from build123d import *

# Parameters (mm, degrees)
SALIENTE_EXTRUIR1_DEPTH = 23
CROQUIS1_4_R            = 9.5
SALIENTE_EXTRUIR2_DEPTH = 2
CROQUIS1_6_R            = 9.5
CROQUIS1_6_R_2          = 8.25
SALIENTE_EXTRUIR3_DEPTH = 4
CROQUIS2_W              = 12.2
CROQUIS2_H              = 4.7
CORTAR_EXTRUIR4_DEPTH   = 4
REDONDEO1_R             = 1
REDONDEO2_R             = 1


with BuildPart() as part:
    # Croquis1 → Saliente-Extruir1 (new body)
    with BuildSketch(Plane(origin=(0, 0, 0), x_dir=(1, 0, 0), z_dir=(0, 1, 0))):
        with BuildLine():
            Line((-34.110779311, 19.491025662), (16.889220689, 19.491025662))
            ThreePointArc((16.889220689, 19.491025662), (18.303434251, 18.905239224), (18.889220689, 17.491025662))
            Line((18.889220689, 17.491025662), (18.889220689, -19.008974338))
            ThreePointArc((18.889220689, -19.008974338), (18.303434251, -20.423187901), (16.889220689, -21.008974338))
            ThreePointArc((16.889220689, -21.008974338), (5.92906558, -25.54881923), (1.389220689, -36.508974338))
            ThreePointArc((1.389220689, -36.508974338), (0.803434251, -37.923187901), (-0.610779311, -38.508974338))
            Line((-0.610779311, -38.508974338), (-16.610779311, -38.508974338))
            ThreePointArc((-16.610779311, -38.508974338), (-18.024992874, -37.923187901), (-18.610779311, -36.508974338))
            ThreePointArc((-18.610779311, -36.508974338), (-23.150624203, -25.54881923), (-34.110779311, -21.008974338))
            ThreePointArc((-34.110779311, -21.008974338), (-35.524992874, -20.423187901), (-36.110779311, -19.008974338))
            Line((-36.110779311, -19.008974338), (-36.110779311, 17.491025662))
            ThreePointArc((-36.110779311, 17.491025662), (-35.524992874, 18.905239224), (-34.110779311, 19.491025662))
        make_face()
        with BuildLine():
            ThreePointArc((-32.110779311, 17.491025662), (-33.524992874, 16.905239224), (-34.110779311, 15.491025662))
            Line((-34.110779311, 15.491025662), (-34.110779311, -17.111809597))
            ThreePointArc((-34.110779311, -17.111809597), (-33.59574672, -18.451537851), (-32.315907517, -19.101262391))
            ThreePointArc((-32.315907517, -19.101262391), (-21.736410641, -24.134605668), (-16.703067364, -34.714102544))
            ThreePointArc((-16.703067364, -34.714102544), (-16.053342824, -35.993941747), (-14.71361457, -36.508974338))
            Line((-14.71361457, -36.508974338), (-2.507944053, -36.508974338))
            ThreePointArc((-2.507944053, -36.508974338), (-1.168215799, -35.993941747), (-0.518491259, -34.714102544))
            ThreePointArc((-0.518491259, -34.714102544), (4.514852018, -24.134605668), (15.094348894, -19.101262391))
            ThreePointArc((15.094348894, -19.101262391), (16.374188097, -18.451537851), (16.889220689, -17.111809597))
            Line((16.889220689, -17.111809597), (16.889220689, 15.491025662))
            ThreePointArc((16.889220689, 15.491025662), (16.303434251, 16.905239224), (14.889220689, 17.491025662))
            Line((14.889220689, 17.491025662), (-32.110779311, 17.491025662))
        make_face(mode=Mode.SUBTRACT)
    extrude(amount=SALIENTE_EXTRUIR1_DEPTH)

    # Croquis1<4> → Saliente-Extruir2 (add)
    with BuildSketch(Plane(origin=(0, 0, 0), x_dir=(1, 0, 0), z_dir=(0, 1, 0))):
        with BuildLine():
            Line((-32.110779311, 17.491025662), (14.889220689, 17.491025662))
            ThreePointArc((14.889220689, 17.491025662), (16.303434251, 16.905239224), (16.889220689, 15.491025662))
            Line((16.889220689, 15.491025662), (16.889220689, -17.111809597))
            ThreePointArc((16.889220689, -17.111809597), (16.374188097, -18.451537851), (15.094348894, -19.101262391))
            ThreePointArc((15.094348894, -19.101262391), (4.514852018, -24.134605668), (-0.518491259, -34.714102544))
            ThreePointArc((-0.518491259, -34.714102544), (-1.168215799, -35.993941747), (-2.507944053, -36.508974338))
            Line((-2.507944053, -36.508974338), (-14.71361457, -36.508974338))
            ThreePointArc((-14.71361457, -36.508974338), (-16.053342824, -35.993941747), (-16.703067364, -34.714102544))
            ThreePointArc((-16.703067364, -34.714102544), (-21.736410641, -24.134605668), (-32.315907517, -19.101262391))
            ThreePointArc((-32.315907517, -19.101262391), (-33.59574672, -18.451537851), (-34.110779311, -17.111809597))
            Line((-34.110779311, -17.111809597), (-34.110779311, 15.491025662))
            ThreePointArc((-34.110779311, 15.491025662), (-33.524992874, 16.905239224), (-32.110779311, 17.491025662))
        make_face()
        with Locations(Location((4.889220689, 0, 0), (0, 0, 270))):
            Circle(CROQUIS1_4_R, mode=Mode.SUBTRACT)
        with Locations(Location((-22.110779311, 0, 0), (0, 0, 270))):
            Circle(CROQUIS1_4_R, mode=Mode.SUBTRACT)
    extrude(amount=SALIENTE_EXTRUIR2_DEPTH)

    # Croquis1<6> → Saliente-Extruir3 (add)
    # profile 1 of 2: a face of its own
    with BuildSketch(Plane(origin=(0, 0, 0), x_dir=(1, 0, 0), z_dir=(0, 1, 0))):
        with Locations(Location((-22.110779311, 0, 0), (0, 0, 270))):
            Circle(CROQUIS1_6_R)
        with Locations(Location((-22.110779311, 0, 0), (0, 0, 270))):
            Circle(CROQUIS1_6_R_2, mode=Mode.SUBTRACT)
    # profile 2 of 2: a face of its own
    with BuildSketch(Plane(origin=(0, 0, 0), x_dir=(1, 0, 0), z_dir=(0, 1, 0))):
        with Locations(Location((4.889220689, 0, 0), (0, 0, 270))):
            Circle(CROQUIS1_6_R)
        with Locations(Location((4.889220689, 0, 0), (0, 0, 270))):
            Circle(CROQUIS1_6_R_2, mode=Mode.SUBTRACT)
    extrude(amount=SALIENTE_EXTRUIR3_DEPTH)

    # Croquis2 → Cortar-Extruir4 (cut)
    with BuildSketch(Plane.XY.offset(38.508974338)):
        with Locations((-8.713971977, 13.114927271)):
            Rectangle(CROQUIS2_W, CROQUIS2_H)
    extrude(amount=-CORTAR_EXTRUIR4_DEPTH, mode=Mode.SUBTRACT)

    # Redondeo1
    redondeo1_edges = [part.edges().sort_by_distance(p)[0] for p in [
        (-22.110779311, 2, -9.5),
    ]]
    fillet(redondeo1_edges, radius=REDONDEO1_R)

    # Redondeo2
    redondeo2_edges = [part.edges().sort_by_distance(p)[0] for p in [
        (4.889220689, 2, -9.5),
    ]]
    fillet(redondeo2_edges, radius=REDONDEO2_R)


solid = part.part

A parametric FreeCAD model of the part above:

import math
import FreeCAD as App
import Part
import Sketcher

V = App.Vector


def edges_at(feature, points):
    """Names of the edges that pass closest to the given points."""
    edges = feature.Shape.Edges
    near = lambda p: min(range(len(edges)), key=lambda i: edges[i].distToShape(Part.Vertex(*p))[0])
    return sorted({f"Edge{near(p) + 1}" for p in points})

doc = App.newDocument("Part")
body = doc.addObject("PartDesign::Body", "Body")

sketch1 = doc.addObject("Sketcher::SketchObject", "Sketch")
body.addObject(sketch1)
sketch1.AttachmentSupport = (doc.XZ_Plane, [""])
sketch1.MapMode = "FlatFace"
sketch1.addGeometry(Part.LineSegment(V(16.9, -19.5, 0), V(-34.1, -19.5, 0)), False)
sketch1.addGeometry(Part.ArcOfCircle(Part.Circle(V(-34.1, -17.5, 0), V(0, 0, 1), 2), math.radians(180), math.radians(270)), False)
sketch1.addGeometry(Part.LineSegment(V(-36.1, -17.5, 0), V(-36.1, 19, 0)), False)
sketch1.addGeometry(Part.ArcOfCircle(Part.Circle(V(-34.1, 19, 0), V(0, 0, 1), 2), math.radians(90), math.radians(180)), False)
sketch1.addGeometry(Part.ArcOfCircle(Part.Circle(V(-34.1, 36.5, 0), V(0, 0, 1), 15.5), math.radians(-90), math.radians(0)), False)
sketch1.addGeometry(Part.ArcOfCircle(Part.Circle(V(-16.6, 36.5, 0), V(0, 0, 1), 2), math.radians(90), math.radians(180)), False)
sketch1.addGeometry(Part.LineSegment(V(-16.6, 38.5, 0), V(-0.6, 38.5, 0)), False)
sketch1.addGeometry(Part.ArcOfCircle(Part.Circle(V(-0.6, 36.5, 0), V(0, 0, 1), 2), math.radians(0), math.radians(90)), False)
sketch1.addGeometry(Part.ArcOfCircle(Part.Circle(V(16.9, 36.5, 0), V(0, 0, 1), 15.5), math.radians(180), math.radians(270)), False)
sketch1.addGeometry(Part.ArcOfCircle(Part.Circle(V(16.9, 19, 0), V(0, 0, 1), 2), math.radians(0), math.radians(90)), False)
sketch1.addGeometry(Part.LineSegment(V(18.9, 19, 0), V(18.9, -17.5, 0)), False)
sketch1.addGeometry(Part.ArcOfCircle(Part.Circle(V(16.9, -17.5, 0), V(0, 0, 1), 2), math.radians(-90), math.radians(0)), False)
sketch1.addGeometry(Part.LineSegment(V(-32.1, -17.5, 0), V(14.9, -17.5, 0)), False)
sketch1.addGeometry(Part.ArcOfCircle(Part.Circle(V(14.9, -15.5, 0), V(0, 0, 1), 2), math.radians(-90), math.radians(0)), False)
sketch1.addGeometry(Part.LineSegment(V(16.9, -15.5, 0), V(16.9, 17.1, 0)), False)
sketch1.addGeometry(Part.ArcOfCircle(Part.Circle(V(14.9, 17.1, 0), V(0, 0, 1), 2), math.radians(0), math.radians(84)), False)
sketch1.addGeometry(Part.ArcOfCircle(Part.Circle(V(16.9, 36.5, 0), V(0, 0, 1), 17.5), math.radians(-174), math.radians(-96)), False)
sketch1.addGeometry(Part.ArcOfCircle(Part.Circle(V(-2.5, 34.5, 0), V(0, 0, 1), 2), math.radians(6), math.radians(90)), False)
sketch1.addGeometry(Part.LineSegment(V(-2.5, 36.5, 0), V(-14.7, 36.5, 0)), False)
sketch1.addGeometry(Part.ArcOfCircle(Part.Circle(V(-14.7, 34.5, 0), V(0, 0, 1), 2), math.radians(90), math.radians(174)), False)
sketch1.addGeometry(Part.ArcOfCircle(Part.Circle(V(-34.1, 36.5, 0), V(0, 0, 1), 17.5), math.radians(-84), math.radians(-6)), False)
sketch1.addGeometry(Part.ArcOfCircle(Part.Circle(V(-32.1, 17.1, 0), V(0, 0, 1), 2), math.radians(96), math.radians(180)), False)
sketch1.addGeometry(Part.LineSegment(V(-34.1, 17.1, 0), V(-34.1, -15.5, 0)), False)
sketch1.addGeometry(Part.ArcOfCircle(Part.Circle(V(-32.1, -15.5, 0), V(0, 0, 1), 2), math.radians(180), math.radians(270)), False)
sketch1.addConstraint(Sketcher.Constraint("Tangent", 0, 2, 1, 2))
sketch1.addConstraint(Sketcher.Constraint("Tangent", 1, 1, 2, 1))
sketch1.addConstraint(Sketcher.Constraint("Tangent", 2, 2, 3, 2))
sketch1.addConstraint(Sketcher.Constraint("Tangent", 3, 1, 4, 1))
sketch1.addConstraint(Sketcher.Constraint("Tangent", 4, 2, 5, 2))
sketch1.addConstraint(Sketcher.Constraint("Tangent", 5, 1, 6, 1))
sketch1.addConstraint(Sketcher.Constraint("Tangent", 6, 2, 7, 2))
sketch1.addConstraint(Sketcher.Constraint("Tangent", 7, 1, 8, 1))
sketch1.addConstraint(Sketcher.Constraint("Tangent", 8, 2, 9, 2))
sketch1.addConstraint(Sketcher.Constraint("Tangent", 9, 1, 10, 1))
sketch1.addConstraint(Sketcher.Constraint("Tangent", 10, 2, 11, 2))
sketch1.addConstraint(Sketcher.Constraint("Tangent", 11, 1, 0, 1))
sketch1.addConstraint(Sketcher.Constraint("Tangent", 12, 2, 13, 1))
sketch1.addConstraint(Sketcher.Constraint("Tangent", 13, 2, 14, 1))
sketch1.addConstraint(Sketcher.Constraint("Tangent", 14, 2, 15, 1))
sketch1.addConstraint(Sketcher.Constraint("Tangent", 15, 2, 16, 2))
sketch1.addConstraint(Sketcher.Constraint("Tangent", 16, 1, 17, 1))
sketch1.addConstraint(Sketcher.Constraint("Tangent", 17, 2, 18, 1))
sketch1.addConstraint(Sketcher.Constraint("Tangent", 18, 2, 19, 1))
sketch1.addConstraint(Sketcher.Constraint("Tangent", 19, 2, 20, 2))
sketch1.addConstraint(Sketcher.Constraint("Tangent", 20, 1, 21, 1))
sketch1.addConstraint(Sketcher.Constraint("Tangent", 21, 2, 22, 1))
sketch1.addConstraint(Sketcher.Constraint("Tangent", 22, 2, 23, 1))
sketch1.addConstraint(Sketcher.Constraint("Tangent", 23, 2, 12, 1))
sketch1.addConstraint(Sketcher.Constraint("Horizontal", 0))
sketch1.addConstraint(Sketcher.Constraint("Vertical", 2))
sketch1.addConstraint(Sketcher.Constraint("Horizontal", 6))
sketch1.addConstraint(Sketcher.Constraint("Vertical", 10))
sketch1.addConstraint(Sketcher.Constraint("Horizontal", 12))
sketch1.addConstraint(Sketcher.Constraint("Vertical", 14))
sketch1.addConstraint(Sketcher.Constraint("Horizontal", 18))
sketch1.addConstraint(Sketcher.Constraint("Vertical", 22))
sketch1.addConstraint(Sketcher.Constraint("Coincident", 16, 3, 8, 3))
sketch1.addConstraint(Sketcher.Constraint("Coincident", 20, 3, 4, 3))
sketch1.addConstraint(Sketcher.Constraint("Equal", 1, 3))
sketch1.addConstraint(Sketcher.Constraint("Equal", 3, 5))
sketch1.addConstraint(Sketcher.Constraint("Equal", 5, 7))
sketch1.addConstraint(Sketcher.Constraint("Equal", 4, 8))
sketch1.addConstraint(Sketcher.Constraint("Equal", 7, 9))
sketch1.addConstraint(Sketcher.Constraint("Equal", 9, 11))
sketch1.addConstraint(Sketcher.Constraint("Equal", 11, 13))
sketch1.addConstraint(Sketcher.Constraint("Equal", 13, 15))
sketch1.addConstraint(Sketcher.Constraint("Equal", 15, 17))
sketch1.addConstraint(Sketcher.Constraint("Equal", 17, 19))
sketch1.addConstraint(Sketcher.Constraint("Equal", 16, 20))
sketch1.addConstraint(Sketcher.Constraint("Equal", 19, 21))
sketch1.addConstraint(Sketcher.Constraint("Equal", 21, 23))
sketch1.addConstraint(Sketcher.Constraint("Horizontal", 4, 3, 5, 3))
sketch1.addConstraint(Sketcher.Constraint("Horizontal", 7, 3, 8, 3))
sketch1.addConstraint(Sketcher.Constraint("Horizontal", 15, 3, 21, 3))
sketch1.addConstraint(Sketcher.Constraint("Horizontal", 10, 2, 12, 2))
sketch1.addConstraint(Sketcher.Constraint("Horizontal", 7, 1, 17, 2))
sketch1.addConstraint(Sketcher.Constraint("Vertical", 3, 3, 4, 3))
sketch1.addConstraint(Sketcher.Constraint("Vertical", 8, 3, 9, 3))
sketch1.addConstraint(Sketcher.Constraint("Vertical", 11, 1, 13, 2))
sketch1.addConstraint(Sketcher.Constraint("Radius", 1, 2.0))
sketch1.addConstraint(Sketcher.Constraint("Radius", 4, 15.5))
sketch1.addConstraint(Sketcher.Constraint("Radius", 16, 17.5))
sketch1.addConstraint(Sketcher.Constraint("DistanceX", 0, 2, 0, 1, 51.0))
sketch1.addConstraint(Sketcher.Constraint("DistanceY", 2, 1, 2, 2, 36.5))
sketch1.addConstraint(Sketcher.Constraint("DistanceX", 1, 3, -1, 1, 34.110779))
sketch1.addConstraint(Sketcher.Constraint("DistanceY", -1, 1, 15, 3, 17.11181))
pad1 = doc.addObject("PartDesign::Pad", "Pad")
body.addObject(pad1)
pad1.Profile = sketch1
pad1.Length = 23
pad1.Reversed = True

sketch2 = doc.addObject("Sketcher::SketchObject", "Sketch001")
body.addObject(sketch2)
sketch2.AttachmentSupport = (doc.XZ_Plane, [""])
sketch2.MapMode = "FlatFace"
sketch2.addGeometry(Part.LineSegment(V(14.9, -17.5, 0), V(-32.1, -17.5, 0)), False)
sketch2.addGeometry(Part.ArcOfCircle(Part.Circle(V(-32.1, -15.5, 0), V(0, 0, 1), 2), math.radians(180), math.radians(270)), False)
sketch2.addGeometry(Part.LineSegment(V(-34.1, -15.5, 0), V(-34.1, 17.1, 0)), False)
sketch2.addGeometry(Part.ArcOfCircle(Part.Circle(V(-32.1, 17.1, 0), V(0, 0, 1), 2), math.radians(96), math.radians(180)), False)
sketch2.addGeometry(Part.ArcOfCircle(Part.Circle(V(-34.1, 36.5, 0), V(0, 0, 1), 17.5), math.radians(-84), math.radians(-6)), False)
sketch2.addGeometry(Part.ArcOfCircle(Part.Circle(V(-14.7, 34.5, 0), V(0, 0, 1), 2), math.radians(90), math.radians(174)), False)
sketch2.addGeometry(Part.LineSegment(V(-14.7, 36.5, 0), V(-2.5, 36.5, 0)), False)
sketch2.addGeometry(Part.ArcOfCircle(Part.Circle(V(-2.5, 34.5, 0), V(0, 0, 1), 2), math.radians(6), math.radians(90)), False)
sketch2.addGeometry(Part.ArcOfCircle(Part.Circle(V(16.9, 36.5, 0), V(0, 0, 1), 17.5), math.radians(-174), math.radians(-96)), False)
sketch2.addGeometry(Part.ArcOfCircle(Part.Circle(V(14.9, 17.1, 0), V(0, 0, 1), 2), math.radians(0), math.radians(84)), False)
sketch2.addGeometry(Part.LineSegment(V(16.9, 17.1, 0), V(16.9, -15.5, 0)), False)
sketch2.addGeometry(Part.ArcOfCircle(Part.Circle(V(14.9, -15.5, 0), V(0, 0, 1), 2), math.radians(-90), math.radians(0)), False)
sketch2.addGeometry(Part.Circle(V(4.9, 0, 0), V(0, 0, 1), 9.5), False)
sketch2.addGeometry(Part.Circle(V(-22.1, 0, 0), V(0, 0, 1), 9.5), False)
sketch2.addConstraint(Sketcher.Constraint("Tangent", 0, 2, 1, 2))
sketch2.addConstraint(Sketcher.Constraint("Tangent", 1, 1, 2, 1))
sketch2.addConstraint(Sketcher.Constraint("Tangent", 2, 2, 3, 2))
sketch2.addConstraint(Sketcher.Constraint("Tangent", 3, 1, 4, 1))
sketch2.addConstraint(Sketcher.Constraint("Tangent", 4, 2, 5, 2))
sketch2.addConstraint(Sketcher.Constraint("Tangent", 5, 1, 6, 1))
sketch2.addConstraint(Sketcher.Constraint("Tangent", 6, 2, 7, 2))
sketch2.addConstraint(Sketcher.Constraint("Tangent", 7, 1, 8, 1))
sketch2.addConstraint(Sketcher.Constraint("Tangent", 8, 2, 9, 2))
sketch2.addConstraint(Sketcher.Constraint("Tangent", 9, 1, 10, 1))
sketch2.addConstraint(Sketcher.Constraint("Tangent", 10, 2, 11, 2))
sketch2.addConstraint(Sketcher.Constraint("Tangent", 11, 1, 0, 1))
sketch2.addConstraint(Sketcher.Constraint("Horizontal", 0))
sketch2.addConstraint(Sketcher.Constraint("Vertical", 2))
sketch2.addConstraint(Sketcher.Constraint("Horizontal", 6))
sketch2.addConstraint(Sketcher.Constraint("Vertical", 10))
sketch2.addConstraint(Sketcher.Constraint("Equal", 1, 3))
sketch2.addConstraint(Sketcher.Constraint("Equal", 3, 5))
sketch2.addConstraint(Sketcher.Constraint("Equal", 5, 7))
sketch2.addConstraint(Sketcher.Constraint("Equal", 4, 8))
sketch2.addConstraint(Sketcher.Constraint("Equal", 7, 9))
sketch2.addConstraint(Sketcher.Constraint("Equal", 9, 11))
sketch2.addConstraint(Sketcher.Constraint("Equal", 12, 13))
sketch2.addConstraint(Sketcher.Constraint("PointOnObject", 12, 3, -1))
sketch2.addConstraint(Sketcher.Constraint("PointOnObject", 13, 3, -1))
sketch2.addConstraint(Sketcher.Constraint("Horizontal", 4, 3, 8, 3))
sketch2.addConstraint(Sketcher.Constraint("Horizontal", 3, 3, 9, 3))
sketch2.addConstraint(Sketcher.Constraint("Horizontal", 8, 3, 5, 1))
sketch2.addConstraint(Sketcher.Constraint("Vertical", 4, 3, 1, 1))
sketch2.addConstraint(Sketcher.Constraint("Diameter", 12, 19.0))
sketch2.addConstraint(Sketcher.Constraint("Radius", 1, 2.0))
sketch2.addConstraint(Sketcher.Constraint("Radius", 4, 17.5))
sketch2.addConstraint(Sketcher.Constraint("DistanceX", 0, 2, 0, 1, 47.0))
sketch2.addConstraint(Sketcher.Constraint("DistanceY", 1, 3, 4, 3, 52.0))
sketch2.addConstraint(Sketcher.Constraint("DistanceX", 12, 3, 11, 3, 10.0))
sketch2.addConstraint(Sketcher.Constraint("DistanceX", 1, 3, 13, 3, 10.0))
sketch2.addConstraint(Sketcher.Constraint("DistanceX", 1, 3, -1, 1, 32.110779))
sketch2.addConstraint(Sketcher.Constraint("DistanceY", -1, 1, 3, 3, 17.11181))
pad2 = doc.addObject("PartDesign::Pad", "Pad001")
body.addObject(pad2)
pad2.Profile = sketch2
pad2.Length = 2
pad2.Reversed = True

sketch3 = doc.addObject("Sketcher::SketchObject", "Sketch002")
body.addObject(sketch3)
sketch3.AttachmentSupport = (doc.XZ_Plane, [""])
sketch3.MapMode = "FlatFace"
sketch3.addGeometry(Part.Circle(V(-22, 0, 0), V(0, 0, 1), 10), False)
sketch3.addGeometry(Part.Circle(V(-22, 0, 0), V(0, 0, 1), 8), False)
sketch3.addGeometry(Part.Circle(V(5, 0, 0), V(0, 0, 1), 10), False)
sketch3.addGeometry(Part.Circle(V(5, 0, 0), V(0, 0, 1), 8), False)
sketch3.addConstraint(Sketcher.Constraint("Coincident", 1, 3, 0, 3))
sketch3.addConstraint(Sketcher.Constraint("Coincident", 3, 3, 2, 3))
sketch3.addConstraint(Sketcher.Constraint("Equal", 0, 2))
sketch3.addConstraint(Sketcher.Constraint("Equal", 1, 3))
sketch3.addConstraint(Sketcher.Constraint("PointOnObject", 0, 3, -1))
sketch3.addConstraint(Sketcher.Constraint("PointOnObject", 2, 3, -1))
sketch3.addConstraint(Sketcher.Constraint("Diameter", 0, 19.0))
sketch3.addConstraint(Sketcher.Constraint("Diameter", 1, 16.5))
sketch3.addConstraint(Sketcher.Constraint("DistanceX", 0, 3, 2, 3, 27.0))
sketch3.addConstraint(Sketcher.Constraint("DistanceX", 0, 3, -1, 1, 22.110779))
pad3 = doc.addObject("PartDesign::Pad", "Pad002")
body.addObject(pad3)
pad3.Profile = sketch3
pad3.Length = 4
pad3.Reversed = True

sketch4 = doc.addObject("Sketcher::SketchObject", "Sketch003")
body.addObject(sketch4)
sketch4.AttachmentSupport = (doc.XY_Plane, [""])
sketch4.MapMode = "FlatFace"
sketch4.AttachmentOffset = App.Placement(V(0, 0, 38.508974), App.Rotation())
sketch4.addGeometry(Part.LineSegment(V(-14.8, 15.5, 0), V(-14.8, 10.8, 0)), False)
sketch4.addGeometry(Part.LineSegment(V(-14.8, 10.8, 0), V(-2.6, 10.8, 0)), False)
sketch4.addGeometry(Part.LineSegment(V(-2.6, 10.8, 0), V(-2.6, 15.5, 0)), False)
sketch4.addGeometry(Part.LineSegment(V(-2.6, 15.5, 0), V(-14.8, 15.5, 0)), False)
sketch4.addConstraint(Sketcher.Constraint("Coincident", 0, 2, 1, 1))
sketch4.addConstraint(Sketcher.Constraint("Coincident", 1, 2, 2, 1))
sketch4.addConstraint(Sketcher.Constraint("Coincident", 2, 2, 3, 1))
sketch4.addConstraint(Sketcher.Constraint("Coincident", 3, 2, 0, 1))
sketch4.addConstraint(Sketcher.Constraint("Vertical", 0))
sketch4.addConstraint(Sketcher.Constraint("Horizontal", 1))
sketch4.addConstraint(Sketcher.Constraint("Vertical", 2))
sketch4.addConstraint(Sketcher.Constraint("Horizontal", 3))
sketch4.addConstraint(Sketcher.Constraint("DistanceX", 1, 1, 1, 2, 12.2))
sketch4.addConstraint(Sketcher.Constraint("DistanceY", 0, 2, 0, 1, 4.7))
sketch4.addConstraint(Sketcher.Constraint("DistanceX", 0, 2, -1, 1, 14.813972))
sketch4.addConstraint(Sketcher.Constraint("DistanceY", -1, 1, 0, 2, 10.764927))
pocket1 = doc.addObject("PartDesign::Pocket", "Pocket")
body.addObject(pocket1)
pocket1.Profile = sketch4
pocket1.Length = 4
doc.recompute()

fillet = doc.addObject("PartDesign::Fillet", "Fillet")
body.addObject(fillet)
fillet.Base = (pocket1, edges_at(pocket1, [(-22.111, 2, -9.5)]))
fillet.Radius = 1
doc.recompute()

fillet2 = doc.addObject("PartDesign::Fillet", "Fillet001")
body.addObject(fillet2)
fillet2.Base = (fillet, edges_at(fillet, [(4.889, 2, -9.5)]))
fillet2.Radius = 1

doc.recompute()
